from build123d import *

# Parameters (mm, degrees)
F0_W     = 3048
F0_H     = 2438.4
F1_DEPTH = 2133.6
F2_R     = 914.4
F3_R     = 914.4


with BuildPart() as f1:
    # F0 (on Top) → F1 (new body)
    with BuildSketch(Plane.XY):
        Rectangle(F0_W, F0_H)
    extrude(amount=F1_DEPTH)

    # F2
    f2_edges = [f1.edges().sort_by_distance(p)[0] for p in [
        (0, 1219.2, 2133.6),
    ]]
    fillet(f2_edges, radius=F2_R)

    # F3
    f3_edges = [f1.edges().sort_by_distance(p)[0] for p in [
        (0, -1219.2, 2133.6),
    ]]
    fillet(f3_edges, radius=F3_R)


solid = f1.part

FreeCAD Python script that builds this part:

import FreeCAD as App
import Part
import Sketcher
from FreeCAD import Vector
Q = App.Units.Quantity


def edges_at(feature, points):
    """Names of the edges that pass closest to the given points."""
    edges = feature.Shape.Edges
    near = lambda p: min(range(len(edges)), key=lambda i: edges[i].distToShape(Part.Vertex(*p))[0])
    return sorted({f"Edge{near(p) + 1}" for p in points})

doc = App.newDocument("Part")
body = doc.addObject("PartDesign::Body", "Body")

# Sketch on XY plane
sketch1 = doc.addObject("Sketcher::SketchObject", "Sketch")
body.addObject(sketch1)
sketch1.AttachmentSupport = (doc.XY_Plane, [""])
sketch1.MapMode = "FlatFace"
sketch1.addGeometry([
    Part.LineSegment(Vector(-1524, 1219.2, 0), Vector(-1524, -1219.2, 0)),
    Part.LineSegment(Vector(-1524, -1219.2, 0), Vector(1524, -1219.2, 0)),
    Part.LineSegment(Vector(1524, -1219.2, 0), Vector(1524, 1219.2, 0)),
    Part.LineSegment(Vector(1524, 1219.2, 0), Vector(-1524, 1219.2, 0)),
], False)
sketch1.addConstraint([
    Sketcher.Constraint("Coincident", 0, 2, 1, 1),
    Sketcher.Constraint("Coincident", 1, 2, 2, 1),
    Sketcher.Constraint("Coincident", 2, 2, 3, 1),
    Sketcher.Constraint("Coincident", 3, 2, 0, 1),
    Sketcher.Constraint("Vertical", 0),
    Sketcher.Constraint("Horizontal", 1),
    Sketcher.Constraint("Vertical", 2),
    Sketcher.Constraint("Horizontal", 3),
    Sketcher.Constraint("Symmetric", 0, 2, 2, 2, -1, 1),
    Sketcher.Constraint("DistanceX", 1, 1, 1, 2, Q("120 in")),
    Sketcher.Constraint("DistanceY", 0, 2, 0, 1, Q("96 in")),
])
pad1 = doc.addObject("PartDesign::Pad", "Pad")
body.addObject(pad1)
pad1.Profile = sketch1
pad1.Length = Q("84 in")
doc.recompute()

fillet = doc.addObject("PartDesign::Fillet", "Fillet")
body.addObject(fillet)
fillet.Base = (pad1, edges_at(pad1, [(0, 1219.2, 2133.6)]))
fillet.Radius = Q("36 in")
doc.recompute()

fillet2 = doc.addObject("PartDesign::Fillet", "Fillet001")
body.addObject(fillet2)
fillet2.Base = (fillet, edges_at(fillet, [(0, -1219.2, 2133.6)]))
fillet2.Radius = Q("36 in")

doc.recompute()
